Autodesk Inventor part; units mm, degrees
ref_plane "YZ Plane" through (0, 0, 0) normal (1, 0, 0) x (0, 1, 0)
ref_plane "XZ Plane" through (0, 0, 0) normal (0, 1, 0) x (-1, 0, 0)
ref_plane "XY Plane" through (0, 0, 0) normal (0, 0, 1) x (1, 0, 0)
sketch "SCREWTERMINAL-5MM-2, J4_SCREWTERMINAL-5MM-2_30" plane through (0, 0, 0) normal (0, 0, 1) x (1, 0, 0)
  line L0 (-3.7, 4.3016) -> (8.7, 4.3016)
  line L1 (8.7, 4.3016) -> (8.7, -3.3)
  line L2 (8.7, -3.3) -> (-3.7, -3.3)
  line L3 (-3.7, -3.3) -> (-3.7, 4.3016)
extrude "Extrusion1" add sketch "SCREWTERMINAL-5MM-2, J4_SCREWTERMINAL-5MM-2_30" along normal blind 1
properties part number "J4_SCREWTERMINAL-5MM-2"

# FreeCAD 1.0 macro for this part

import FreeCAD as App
import Part
import Sketcher

V = App.Vector


def add_polygon(sketch, points):
    """Adds a closed chain of lines whose ends are joined by coincident constraints."""
    first, n = sketch.GeometryCount, len(points)
    for a, b in zip(points, points[1:] + points[:1]):
        sketch.addGeometry(Part.LineSegment(App.Vector(*a, 0), App.Vector(*b, 0)), False)
    for i in range(n):
        sketch.addConstraint(Sketcher.Constraint("Coincident", first + i, 2, first + (i + 1) % n, 1))

doc = App.newDocument("Part")
body = doc.addObject("PartDesign::Body", "Body")

# Sketch on XY plane
sketch1 = doc.addObject("Sketcher::SketchObject", "Sketch")
body.addObject(sketch1)
sketch1.AttachmentSupport = (doc.XY_Plane, [""])
sketch1.MapMode = "FlatFace"
add_polygon(sketch1, [(9, 4), (-4, 4), (-4, -3), (9, -3)])  # lines 0-3
sketch1.addConstraint(Sketcher.Constraint("Horizontal", 0))
sketch1.addConstraint(Sketcher.Constraint("Vertical", 1))
sketch1.addConstraint(Sketcher.Constraint("Horizontal", 2))
sketch1.addConstraint(Sketcher.Constraint("Vertical", 3))
sketch1.addConstraint(Sketcher.Constraint("DistanceX", 0, 2, 0, 1, 12.4))
sketch1.addConstraint(Sketcher.Constraint("DistanceX", 0, 2, -1, 1, 3.7))
sketch1.addConstraint(Sketcher.Constraint("DistanceY", 1, 2, -1, 1, 3.3))
sketch1.addConstraint(Sketcher.Constraint("DistanceY", 1, 2, 1, 1, 7.6016))
pad1 = doc.addObject("PartDesign::Pad", "Pad")
body.addObject(pad1)
pad1.Profile = sketch1
pad1.Length = 1

doc.recompute()
